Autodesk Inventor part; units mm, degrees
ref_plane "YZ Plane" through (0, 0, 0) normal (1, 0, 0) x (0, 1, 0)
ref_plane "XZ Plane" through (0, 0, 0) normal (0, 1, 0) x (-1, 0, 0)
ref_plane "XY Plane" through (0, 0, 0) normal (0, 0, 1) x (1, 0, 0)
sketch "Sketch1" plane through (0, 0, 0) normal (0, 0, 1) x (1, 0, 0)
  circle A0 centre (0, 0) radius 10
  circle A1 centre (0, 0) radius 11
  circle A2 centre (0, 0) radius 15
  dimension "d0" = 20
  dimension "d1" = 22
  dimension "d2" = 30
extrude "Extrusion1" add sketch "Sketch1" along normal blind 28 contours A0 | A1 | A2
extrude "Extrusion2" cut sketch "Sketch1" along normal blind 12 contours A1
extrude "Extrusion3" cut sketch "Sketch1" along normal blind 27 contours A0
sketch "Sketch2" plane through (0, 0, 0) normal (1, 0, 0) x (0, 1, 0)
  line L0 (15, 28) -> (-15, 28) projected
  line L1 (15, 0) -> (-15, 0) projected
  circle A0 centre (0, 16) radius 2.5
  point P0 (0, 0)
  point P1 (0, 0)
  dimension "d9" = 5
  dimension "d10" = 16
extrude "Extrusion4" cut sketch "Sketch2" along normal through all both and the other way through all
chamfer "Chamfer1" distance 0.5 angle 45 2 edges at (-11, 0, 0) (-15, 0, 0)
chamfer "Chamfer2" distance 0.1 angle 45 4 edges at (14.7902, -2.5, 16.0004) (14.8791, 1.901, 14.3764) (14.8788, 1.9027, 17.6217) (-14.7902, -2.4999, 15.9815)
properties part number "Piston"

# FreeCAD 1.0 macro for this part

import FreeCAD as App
import Part
import Sketcher
Q = App.Units.Quantity


def edges_at(feature, points):
    """Names of the edges that pass closest to the given points."""
    edges = feature.Shape.Edges
    near = lambda p: min(range(len(edges)), key=lambda i: edges[i].distToShape(Part.Vertex(*p))[0])
    return sorted({f"Edge{near(p) + 1}" for p in points})

doc = App.newDocument("Part")
body = doc.addObject("PartDesign::Body", "Body")

# Sketch on XY plane
sketch1 = body.newObject("Sketcher::SketchObject", "Sketch")
sketch1.AttachmentSupport = (doc.getObject("XY_Plane"), [""])
sketch1.MapMode = "FlatFace"
sketch1.addGeometry(Part.Circle(App.Vector(0, 0, 0), App.Vector(0, 0, 1), 15), False)
sketch1.addConstraint(Sketcher.Constraint("Coincident", 0, 3, -1, 1))
sketch1.addConstraint(Sketcher.Constraint("Diameter", 0, Q("30 mm")))
pad1 = body.newObject("PartDesign::Pad", "Pad")
pad1.Profile = sketch1
pad1.Length = 28

# Sketch on XY plane
sketch2 = body.newObject("Sketcher::SketchObject", "Sketch001")
sketch2.AttachmentSupport = (doc.getObject("XY_Plane"), [""])
sketch2.MapMode = "FlatFace"
sketch2.addGeometry(Part.Circle(App.Vector(0, 0, 0), App.Vector(0, 0, 1), 11), False)
sketch2.addGeometry(Part.Circle(App.Vector(0, 0, 0), App.Vector(0, 0, 1), 10), False)
sketch2.addConstraint(Sketcher.Constraint("Coincident", 0, 3, -1, 1))
sketch2.addConstraint(Sketcher.Constraint("Coincident", 1, 3, -1, 1))
sketch2.addConstraint(Sketcher.Constraint("Diameter", 0, Q("22 mm")))
sketch2.addConstraint(Sketcher.Constraint("Diameter", 1, Q("20 mm")))
pocket1 = body.newObject("PartDesign::Pocket", "Pocket")
pocket1.Profile = sketch2
pocket1.Length = 12
pocket1.Reversed = True

# Sketch on XY plane
sketch3 = body.newObject("Sketcher::SketchObject", "Sketch002")
sketch3.AttachmentSupport = (doc.getObject("XY_Plane"), [""])
sketch3.MapMode = "FlatFace"
sketch3.addGeometry(Part.Circle(App.Vector(0, 0, 0), App.Vector(0, 0, 1), 10), False)
sketch3.addConstraint(Sketcher.Constraint("Coincident", 0, 3, -1, 1))
sketch3.addConstraint(Sketcher.Constraint("Diameter", 0, Q("20 mm")))
pocket2 = body.newObject("PartDesign::Pocket", "Pocket001")
pocket2.Profile = sketch3
pocket2.Length = 27
pocket2.Reversed = True

# Sketch on YZ plane
sketch4 = body.newObject("Sketcher::SketchObject", "Sketch003")
sketch4.AttachmentSupport = (doc.getObject("YZ_Plane"), [""])
sketch4.MapMode = "FlatFace"
sketch4.addGeometry(Part.Circle(App.Vector(0, 16, 0), App.Vector(0, 0, 1), 2.5), False)
sketch4.addConstraint(Sketcher.Constraint("PointOnObject", 0, 3, -2))
sketch4.addConstraint(Sketcher.Constraint("Diameter", 0, Q("5 mm")))
sketch4.addConstraint(Sketcher.Constraint("DistanceY", -1, 1, 0, 3, Q("16 mm")))
pocket3 = body.newObject("PartDesign::Pocket", "Pocket002")
pocket3.Profile = sketch4
pocket3.Type = "ThroughAll"
pocket3.Midplane = True
doc.recompute()

chamfer = body.newObject("PartDesign::Chamfer", "Chamfer")
chamfer.Base = (pocket3, edges_at(pocket3, [(-11, 0, 0), (-15, 0, 0)]))
chamfer.Size = 0.5
doc.recompute()

chamfer2 = body.newObject("PartDesign::Chamfer", "Chamfer001")
chamfer2.Base = (chamfer, edges_at(chamfer, [
    (14.79, -2.5, 16),
    (14.879, 1.901, 14.376),
    (14.879, 1.903, 17.622),
    (-14.79, -2.5, 15.982),
]))
chamfer2.Size = 0.1

doc.recompute()
